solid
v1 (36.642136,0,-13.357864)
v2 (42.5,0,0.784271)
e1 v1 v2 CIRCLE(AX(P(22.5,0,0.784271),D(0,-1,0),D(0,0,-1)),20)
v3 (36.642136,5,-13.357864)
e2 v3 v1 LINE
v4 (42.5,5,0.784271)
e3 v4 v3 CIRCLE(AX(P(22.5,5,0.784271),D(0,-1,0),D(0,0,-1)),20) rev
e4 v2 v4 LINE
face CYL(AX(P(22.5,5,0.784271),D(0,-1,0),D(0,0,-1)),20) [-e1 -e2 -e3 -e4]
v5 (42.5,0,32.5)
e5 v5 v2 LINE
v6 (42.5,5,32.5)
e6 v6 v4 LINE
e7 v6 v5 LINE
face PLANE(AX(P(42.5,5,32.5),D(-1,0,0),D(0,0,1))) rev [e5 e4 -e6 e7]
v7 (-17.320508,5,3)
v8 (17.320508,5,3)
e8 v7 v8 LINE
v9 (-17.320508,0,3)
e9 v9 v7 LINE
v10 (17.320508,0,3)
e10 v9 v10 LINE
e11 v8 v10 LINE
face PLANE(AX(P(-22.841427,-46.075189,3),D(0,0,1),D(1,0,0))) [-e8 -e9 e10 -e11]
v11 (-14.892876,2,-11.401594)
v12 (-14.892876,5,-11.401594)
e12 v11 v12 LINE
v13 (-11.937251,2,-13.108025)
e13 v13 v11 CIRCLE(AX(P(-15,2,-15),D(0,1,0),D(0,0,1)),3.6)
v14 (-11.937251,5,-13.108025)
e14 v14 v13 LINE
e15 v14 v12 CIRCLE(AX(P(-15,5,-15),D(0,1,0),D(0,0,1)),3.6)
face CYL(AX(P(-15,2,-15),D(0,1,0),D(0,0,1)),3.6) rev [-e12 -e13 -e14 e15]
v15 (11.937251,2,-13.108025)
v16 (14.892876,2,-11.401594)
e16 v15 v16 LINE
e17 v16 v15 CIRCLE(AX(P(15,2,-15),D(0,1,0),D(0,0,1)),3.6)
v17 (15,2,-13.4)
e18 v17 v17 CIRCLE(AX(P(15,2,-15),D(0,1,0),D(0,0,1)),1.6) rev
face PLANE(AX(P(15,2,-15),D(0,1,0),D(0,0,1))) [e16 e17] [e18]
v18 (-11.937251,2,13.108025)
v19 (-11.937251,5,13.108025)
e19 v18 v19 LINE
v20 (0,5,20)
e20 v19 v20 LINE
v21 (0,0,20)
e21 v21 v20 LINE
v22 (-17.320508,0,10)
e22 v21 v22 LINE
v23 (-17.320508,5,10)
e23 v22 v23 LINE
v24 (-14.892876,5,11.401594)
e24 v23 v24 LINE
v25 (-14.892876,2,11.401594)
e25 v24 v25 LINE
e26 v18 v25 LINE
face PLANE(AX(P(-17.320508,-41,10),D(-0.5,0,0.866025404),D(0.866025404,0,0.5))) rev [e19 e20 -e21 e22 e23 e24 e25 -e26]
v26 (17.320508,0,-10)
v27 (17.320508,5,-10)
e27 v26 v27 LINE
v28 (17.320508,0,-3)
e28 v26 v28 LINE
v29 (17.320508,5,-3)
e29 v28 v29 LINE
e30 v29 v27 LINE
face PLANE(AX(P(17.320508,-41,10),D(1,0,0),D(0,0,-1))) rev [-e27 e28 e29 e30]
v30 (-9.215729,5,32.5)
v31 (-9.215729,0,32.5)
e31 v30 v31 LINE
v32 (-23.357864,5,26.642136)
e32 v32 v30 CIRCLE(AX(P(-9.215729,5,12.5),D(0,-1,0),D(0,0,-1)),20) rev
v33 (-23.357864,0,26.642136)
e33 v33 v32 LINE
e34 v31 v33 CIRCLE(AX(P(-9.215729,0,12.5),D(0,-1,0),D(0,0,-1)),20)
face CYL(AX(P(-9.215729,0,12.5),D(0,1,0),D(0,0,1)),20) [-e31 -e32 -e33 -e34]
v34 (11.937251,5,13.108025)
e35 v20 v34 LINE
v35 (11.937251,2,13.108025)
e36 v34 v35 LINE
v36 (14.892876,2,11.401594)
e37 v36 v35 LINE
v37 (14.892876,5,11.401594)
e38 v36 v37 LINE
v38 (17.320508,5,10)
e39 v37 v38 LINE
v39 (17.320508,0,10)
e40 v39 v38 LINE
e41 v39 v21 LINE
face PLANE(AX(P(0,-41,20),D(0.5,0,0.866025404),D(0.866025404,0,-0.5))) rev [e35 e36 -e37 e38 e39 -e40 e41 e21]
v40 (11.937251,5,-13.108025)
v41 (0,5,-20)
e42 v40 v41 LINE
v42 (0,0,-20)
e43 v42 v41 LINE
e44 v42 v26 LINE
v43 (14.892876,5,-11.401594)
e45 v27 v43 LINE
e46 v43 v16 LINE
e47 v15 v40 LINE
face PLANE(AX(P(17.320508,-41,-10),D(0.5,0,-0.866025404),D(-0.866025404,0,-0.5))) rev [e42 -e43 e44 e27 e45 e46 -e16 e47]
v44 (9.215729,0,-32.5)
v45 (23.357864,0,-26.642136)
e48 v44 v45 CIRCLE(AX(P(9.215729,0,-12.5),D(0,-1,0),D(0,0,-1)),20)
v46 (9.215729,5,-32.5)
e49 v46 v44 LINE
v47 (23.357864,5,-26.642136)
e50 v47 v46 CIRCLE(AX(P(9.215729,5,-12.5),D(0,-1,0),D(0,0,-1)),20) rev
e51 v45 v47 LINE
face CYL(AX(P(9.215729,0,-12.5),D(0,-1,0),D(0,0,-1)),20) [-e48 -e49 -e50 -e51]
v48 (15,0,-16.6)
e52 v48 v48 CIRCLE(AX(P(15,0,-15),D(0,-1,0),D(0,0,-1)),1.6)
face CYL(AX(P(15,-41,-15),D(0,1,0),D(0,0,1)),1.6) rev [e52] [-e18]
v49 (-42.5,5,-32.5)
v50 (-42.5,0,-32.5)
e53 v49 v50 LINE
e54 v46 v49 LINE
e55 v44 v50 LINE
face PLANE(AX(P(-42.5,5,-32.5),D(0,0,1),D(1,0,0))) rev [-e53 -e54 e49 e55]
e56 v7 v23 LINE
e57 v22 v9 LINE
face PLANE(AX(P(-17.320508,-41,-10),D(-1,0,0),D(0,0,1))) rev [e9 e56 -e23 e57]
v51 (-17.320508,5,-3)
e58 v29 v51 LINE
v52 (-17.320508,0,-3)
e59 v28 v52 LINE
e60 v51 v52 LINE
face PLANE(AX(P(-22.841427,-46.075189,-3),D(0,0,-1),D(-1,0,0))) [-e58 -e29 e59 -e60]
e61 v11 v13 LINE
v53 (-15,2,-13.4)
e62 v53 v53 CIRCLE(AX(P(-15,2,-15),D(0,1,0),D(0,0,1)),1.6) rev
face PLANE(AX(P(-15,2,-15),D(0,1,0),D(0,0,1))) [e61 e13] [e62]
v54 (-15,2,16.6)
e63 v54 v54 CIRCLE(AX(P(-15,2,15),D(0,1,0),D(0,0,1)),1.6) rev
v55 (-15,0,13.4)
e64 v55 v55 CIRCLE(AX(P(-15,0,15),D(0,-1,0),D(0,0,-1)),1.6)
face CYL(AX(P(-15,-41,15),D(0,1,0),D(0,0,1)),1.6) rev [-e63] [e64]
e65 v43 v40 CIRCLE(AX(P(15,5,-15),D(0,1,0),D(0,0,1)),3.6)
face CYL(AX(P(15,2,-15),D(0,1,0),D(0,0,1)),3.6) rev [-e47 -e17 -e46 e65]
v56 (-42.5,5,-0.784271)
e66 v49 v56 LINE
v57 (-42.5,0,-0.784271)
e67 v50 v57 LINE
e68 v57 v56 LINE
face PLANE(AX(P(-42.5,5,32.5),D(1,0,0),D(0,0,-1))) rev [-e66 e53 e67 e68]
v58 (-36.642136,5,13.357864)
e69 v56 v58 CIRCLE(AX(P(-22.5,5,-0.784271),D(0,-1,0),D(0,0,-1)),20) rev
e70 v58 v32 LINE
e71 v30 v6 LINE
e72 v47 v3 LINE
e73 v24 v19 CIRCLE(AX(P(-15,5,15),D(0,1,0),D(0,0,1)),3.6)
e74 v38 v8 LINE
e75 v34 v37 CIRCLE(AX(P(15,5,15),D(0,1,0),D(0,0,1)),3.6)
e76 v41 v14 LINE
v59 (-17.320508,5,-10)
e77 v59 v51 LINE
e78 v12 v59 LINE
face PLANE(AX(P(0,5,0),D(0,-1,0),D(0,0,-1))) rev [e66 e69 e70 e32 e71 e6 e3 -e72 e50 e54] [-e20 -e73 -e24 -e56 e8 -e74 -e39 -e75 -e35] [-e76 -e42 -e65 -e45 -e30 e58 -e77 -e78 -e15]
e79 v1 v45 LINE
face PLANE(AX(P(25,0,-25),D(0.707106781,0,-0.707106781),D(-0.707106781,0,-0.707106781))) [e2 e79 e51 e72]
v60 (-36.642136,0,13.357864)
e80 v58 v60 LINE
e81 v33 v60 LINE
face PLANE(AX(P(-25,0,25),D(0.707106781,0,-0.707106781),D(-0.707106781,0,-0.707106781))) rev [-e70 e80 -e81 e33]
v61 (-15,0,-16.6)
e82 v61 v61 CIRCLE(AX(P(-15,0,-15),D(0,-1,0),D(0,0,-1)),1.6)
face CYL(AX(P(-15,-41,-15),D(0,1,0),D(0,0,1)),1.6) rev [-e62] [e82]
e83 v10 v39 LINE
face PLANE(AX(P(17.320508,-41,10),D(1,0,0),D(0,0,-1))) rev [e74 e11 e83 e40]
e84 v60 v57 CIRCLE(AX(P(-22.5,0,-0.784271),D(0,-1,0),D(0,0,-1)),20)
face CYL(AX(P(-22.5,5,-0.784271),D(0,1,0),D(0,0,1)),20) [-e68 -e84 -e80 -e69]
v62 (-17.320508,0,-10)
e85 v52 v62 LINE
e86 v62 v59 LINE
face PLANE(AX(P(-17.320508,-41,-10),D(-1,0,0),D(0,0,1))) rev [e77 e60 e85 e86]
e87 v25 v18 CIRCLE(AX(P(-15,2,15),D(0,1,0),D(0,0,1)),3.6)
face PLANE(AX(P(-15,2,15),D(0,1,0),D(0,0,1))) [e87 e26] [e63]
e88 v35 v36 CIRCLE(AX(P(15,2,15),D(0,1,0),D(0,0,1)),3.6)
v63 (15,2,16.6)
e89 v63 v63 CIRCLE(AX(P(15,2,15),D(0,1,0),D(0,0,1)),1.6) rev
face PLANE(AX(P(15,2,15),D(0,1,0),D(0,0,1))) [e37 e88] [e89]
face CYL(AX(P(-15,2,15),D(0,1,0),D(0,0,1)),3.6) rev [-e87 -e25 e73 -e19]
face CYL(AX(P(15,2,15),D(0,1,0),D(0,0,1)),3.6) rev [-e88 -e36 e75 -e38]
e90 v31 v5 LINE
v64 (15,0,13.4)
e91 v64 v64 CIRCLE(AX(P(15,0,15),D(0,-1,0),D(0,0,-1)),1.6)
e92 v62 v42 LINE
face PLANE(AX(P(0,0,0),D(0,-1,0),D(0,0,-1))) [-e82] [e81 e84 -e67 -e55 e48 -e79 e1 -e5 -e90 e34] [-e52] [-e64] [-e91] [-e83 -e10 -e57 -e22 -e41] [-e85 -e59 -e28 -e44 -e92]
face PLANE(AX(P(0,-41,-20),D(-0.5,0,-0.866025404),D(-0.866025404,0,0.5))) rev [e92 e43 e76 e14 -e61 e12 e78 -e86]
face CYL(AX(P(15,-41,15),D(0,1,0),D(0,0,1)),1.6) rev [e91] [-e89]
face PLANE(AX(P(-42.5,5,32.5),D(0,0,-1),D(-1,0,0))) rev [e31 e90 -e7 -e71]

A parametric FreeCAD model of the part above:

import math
import FreeCAD as App
import Part
import Sketcher
Q = App.Units.Quantity


def edges_at(feature, points):
    """Names of the edges that pass closest to the given points."""
    edges = feature.Shape.Edges
    near = lambda p: min(range(len(edges)), key=lambda i: edges[i].distToShape(Part.Vertex(*p))[0])
    return sorted({f"Edge{near(p) + 1}" for p in points})

doc = App.newDocument("Part")
body = doc.addObject("PartDesign::Body", "Body")

# Sketch on XZ plane
sketch1 = body.newObject("Sketcher::SketchObject", "Sketch")
sketch1.AttachmentSupport = (doc.getObject("XZ_Plane"), [""])
sketch1.MapMode = "FlatFace"
sketch1.addGeometry(Part.LineSegment(App.Vector(-42.5, -32.5, 0), App.Vector(-42.5, 32.5, 0)), False)
sketch1.addGeometry(Part.LineSegment(App.Vector(-42.5, 32.5, 0), App.Vector(42.5, 32.5, 0)), False)
sketch1.addGeometry(Part.LineSegment(App.Vector(42.5, 32.5, 0), App.Vector(42.5, -32.5, 0)), False)
sketch1.addGeometry(Part.LineSegment(App.Vector(42.5, -32.5, 0), App.Vector(-42.5, -32.5, 0)), False)
sketch1.addConstraint(Sketcher.Constraint("Coincident", 0, 2, 1, 1))
sketch1.addConstraint(Sketcher.Constraint("Coincident", 1, 2, 2, 1))
sketch1.addConstraint(Sketcher.Constraint("Coincident", 2, 2, 3, 1))
sketch1.addConstraint(Sketcher.Constraint("Coincident", 3, 2, 0, 1))
sketch1.addConstraint(Sketcher.Constraint("Vertical", 0))
sketch1.addConstraint(Sketcher.Constraint("Horizontal", 1))
sketch1.addConstraint(Sketcher.Constraint("Vertical", 2))
sketch1.addConstraint(Sketcher.Constraint("Horizontal", 3))
sketch1.addConstraint(Sketcher.Constraint("Symmetric", 0, 2, 2, 2, -1, 1))
sketch1.addConstraint(Sketcher.Constraint("DistanceX", 1, 1, 1, 2, 85.0))
sketch1.addConstraint(Sketcher.Constraint("DistanceY", 0, 1, 0, 2, 65.0))
pad1 = body.newObject("PartDesign::Pad", "Pad")
pad1.Profile = sketch1
pad1.Length = 5
pad1.Reversed = True

# Sketch on XZ plane
sketch2 = body.newObject("Sketcher::SketchObject", "Sketch001")
sketch2.AttachmentSupport = (doc.getObject("XZ_Plane"), [""])
sketch2.MapMode = "FlatFace"
sketch2.AttachmentOffset = App.Placement(App.Vector(0, 0, -5), App.Rotation())
sketch2.addGeometry(Part.ArcOfCircle(Part.Circle(App.Vector(-15, -15, 0), App.Vector(0, 0, 1), 1.6), math.radians(90), math.radians(360)), False)
sketch2.addGeometry(Part.ArcOfCircle(Part.Circle(App.Vector(-15, -15, 0), App.Vector(0, 0, 1), 1.6), math.radians(0), math.radians(90)), False)
sketch2.addGeometry(Part.ArcOfCircle(Part.Circle(App.Vector(15, -15, 0), App.Vector(0, 0, 1), 1.6), math.radians(90), math.radians(180)), False)
sketch2.addGeometry(Part.ArcOfCircle(Part.Circle(App.Vector(15, -15, 0), App.Vector(0, 0, 1), 1.6), math.radians(0), math.radians(90)), False)
sketch2.addGeometry(Part.ArcOfCircle(Part.Circle(App.Vector(15, -15, 0), App.Vector(0, 0, 1), 1.6), math.radians(180), math.radians(360)), False)
sketch2.addGeometry(Part.ArcOfCircle(Part.Circle(App.Vector(-15, 15, 0), App.Vector(0, 0, 1), 1.6), math.radians(-90), math.radians(0)), False)
sketch2.addGeometry(Part.ArcOfCircle(Part.Circle(App.Vector(-15, 15, 0), App.Vector(0, 0, 1), 1.6), math.radians(0), math.radians(270)), False)
sketch2.addGeometry(Part.ArcOfCircle(Part.Circle(App.Vector(15, 15, 0), App.Vector(0, 0, 1), 1.6), math.radians(180), math.radians(270)), False)
sketch2.addGeometry(Part.ArcOfCircle(Part.Circle(App.Vector(15, 15, 0), App.Vector(0, 0, 1), 1.6), math.radians(0), math.radians(180)), False)
sketch2.addGeometry(Part.ArcOfCircle(Part.Circle(App.Vector(15, 15, 0), App.Vector(0, 0, 1), 1.6), math.radians(-90), math.radians(0)), False)
sketch2.addConstraint(Sketcher.Constraint("Tangent", 0, 1, 1, 2))
sketch2.addConstraint(Sketcher.Constraint("Coincident", 1, 1, 0, 2))
sketch2.addConstraint(Sketcher.Constraint("Tangent", 2, 1, 3, 2))
sketch2.addConstraint(Sketcher.Constraint("Tangent", 3, 1, 4, 2))
sketch2.addConstraint(Sketcher.Constraint("Tangent", 4, 1, 2, 2))
sketch2.addConstraint(Sketcher.Constraint("Tangent", 5, 1, 6, 2))
sketch2.addConstraint(Sketcher.Constraint("Coincident", 6, 1, 5, 2))
sketch2.addConstraint(Sketcher.Constraint("Tangent", 7, 1, 8, 2))
sketch2.addConstraint(Sketcher.Constraint("Tangent", 8, 1, 9, 2))
sketch2.addConstraint(Sketcher.Constraint("Tangent", 9, 1, 7, 2))
sketch2.addConstraint(Sketcher.Constraint("Equal", 1, 2))
sketch2.addConstraint(Sketcher.Constraint("Equal", 4, 5))
sketch2.addConstraint(Sketcher.Constraint("Equal", 6, 7))
sketch2.addConstraint(Sketcher.Constraint("Symmetric", 2, 3, 5, 3, -1, 1))
sketch2.addConstraint(Sketcher.Constraint("Symmetric", 0, 3, 7, 3, -1, 1))
sketch2.addConstraint(Sketcher.Constraint("Symmetric", 0, 3, 2, 3, -2))
sketch2.addConstraint(Sketcher.Constraint("Horizontal", 4, 3, 1, 1))
sketch2.addConstraint(Sketcher.Constraint("Horizontal", 1, 1, 3, 1))
sketch2.addConstraint(Sketcher.Constraint("Horizontal", 3, 1, 4, 1))
sketch2.addConstraint(Sketcher.Constraint("Horizontal", 9, 3, 6, 1))
sketch2.addConstraint(Sketcher.Constraint("Horizontal", 6, 1, 7, 1))
sketch2.addConstraint(Sketcher.Constraint("Horizontal", 7, 1, 8, 1))
sketch2.addConstraint(Sketcher.Constraint("Vertical", 6, 3, 0, 1))
sketch2.addConstraint(Sketcher.Constraint("Vertical", 9, 3, 2, 1))
sketch2.addConstraint(Sketcher.Constraint("Vertical", 0, 1, 5, 1))
sketch2.addConstraint(Sketcher.Constraint("Vertical", 2, 1, 9, 1))
sketch2.addConstraint(Sketcher.Constraint("Radius", 0, 1.6))
sketch2.addConstraint(Sketcher.Constraint("DistanceX", 0, 3, -1, 1, 15.0))
sketch2.addConstraint(Sketcher.Constraint("DistanceY", 0, 3, -1, 1, 15.0))
pocket1 = body.newObject("PartDesign::Pocket", "Pocket")
pocket1.Profile = sketch2
pocket1.Length = 46
pocket1.Reversed = True

# Sketch on XZ plane
sketch3 = body.newObject("Sketcher::SketchObject", "Sketch002")
sketch3.AttachmentSupport = (doc.getObject("XZ_Plane"), [""])
sketch3.MapMode = "FlatFace"
sketch3.AttachmentOffset = App.Placement(App.Vector(0, 0, -5), App.Rotation())
sketch3.addGeometry(Part.LineSegment(App.Vector(0, 20, 0), App.Vector(17.320508, 10, 0)), False)
sketch3.addGeometry(Part.LineSegment(App.Vector(17.320508, 10, 0), App.Vector(17.320508, -10, 0)), False)
sketch3.addGeometry(Part.LineSegment(App.Vector(17.320508, -10, 0), App.Vector(0, -20, 0)), False)
sketch3.addGeometry(Part.LineSegment(App.Vector(0, -20, 0), App.Vector(-17.320508, -10, 0)), False)
sketch3.addGeometry(Part.LineSegment(App.Vector(-17.320508, -10, 0), App.Vector(-17.320508, 10, 0)), False)
sketch3.addGeometry(Part.LineSegment(App.Vector(-17.320508, 10, 0), App.Vector(0, 20, 0)), False)
sketch3.addConstraint(Sketcher.Constraint("Coincident", 0, 2, 1, 1))
sketch3.addConstraint(Sketcher.Constraint("Coincident", 1, 2, 2, 1))
sketch3.addConstraint(Sketcher.Constraint("Coincident", 2, 2, 3, 1))
sketch3.addConstraint(Sketcher.Constraint("Coincident", 3, 2, 4, 1))
sketch3.addConstraint(Sketcher.Constraint("Coincident", 4, 2, 5, 1))
sketch3.addConstraint(Sketcher.Constraint("Coincident", 5, 2, 0, 1))
sketch3.addConstraint(Sketcher.Constraint("Vertical", 1))
sketch3.addConstraint(Sketcher.Constraint("Vertical", 4))
sketch3.addConstraint(Sketcher.Constraint("Symmetric", 0, 2, 3, 2, -1, 1))
sketch3.addConstraint(Sketcher.Constraint("Symmetric", 2, 2, 5, 2, -1, 1))
sketch3.addConstraint(Sketcher.Constraint("PointOnObject", 2, 2, -2))
sketch3.addConstraint(Sketcher.Constraint("Parallel", 2, 5))
sketch3.addConstraint(Sketcher.Constraint("Horizontal", 1, 2, 3, 2))
sketch3.addConstraint(Sketcher.Constraint("DistanceY", 1, 2, 1, 1, 20.0))
sketch3.addConstraint(Sketcher.Constraint("Angle", 0, Q("-30 deg")))
sketch3.addConstraint(Sketcher.Constraint("Distance", 0, 20.0))
pocket2 = body.newObject("PartDesign::Pocket", "Pocket001")
pocket2.Profile = sketch3
pocket2.Length = 46
pocket2.Reversed = True

# Sketch on XZ plane
sketch4 = body.newObject("Sketcher::SketchObject", "Sketch003")
sketch4.AttachmentSupport = (doc.getObject("XZ_Plane"), [""])
sketch4.MapMode = "FlatFace"
sketch4.AttachmentOffset = App.Placement(App.Vector(0, 0, -5), App.Rotation())
sketch4.addGeometry(Part.LineSegment(App.Vector(-22.841427, -3, 0), App.Vector(-22.841427, 3, 0)), False)
sketch4.addGeometry(Part.LineSegment(App.Vector(-22.841427, 3, 0), App.Vector(22.841427, 3, 0)), False)
sketch4.addGeometry(Part.LineSegment(App.Vector(22.841427, 3, 0), App.Vector(22.841427, -3, 0)), False)
sketch4.addGeometry(Part.LineSegment(App.Vector(22.841427, -3, 0), App.Vector(-22.841427, -3, 0)), False)
sketch4.addConstraint(Sketcher.Constraint("Coincident", 0, 2, 1, 1))
sketch4.addConstraint(Sketcher.Constraint("Coincident", 1, 2, 2, 1))
sketch4.addConstraint(Sketcher.Constraint("Coincident", 2, 2, 3, 1))
sketch4.addConstraint(Sketcher.Constraint("Coincident", 3, 2, 0, 1))
sketch4.addConstraint(Sketcher.Constraint("Vertical", 0))
sketch4.addConstraint(Sketcher.Constraint("Horizontal", 1))
sketch4.addConstraint(Sketcher.Constraint("Vertical", 2))
sketch4.addConstraint(Sketcher.Constraint("Horizontal", 3))
sketch4.addConstraint(Sketcher.Constraint("Symmetric", 0, 2, 2, 2, -1, 1))
sketch4.addConstraint(Sketcher.Constraint("DistanceY", 0, 1, 0, 2, 6.0))
sketch4.addConstraint(Sketcher.Constraint("DistanceX", 1, 1, 1, 2, 45.682853))
pad2 = body.newObject("PartDesign::Pad", "Pad001")
pad2.Profile = sketch4
pad2.Length = 5

# Sketch on XZ plane
sketch5 = body.newObject("Sketcher::SketchObject", "Sketch004")
sketch5.AttachmentSupport = (doc.getObject("XZ_Plane"), [""])
sketch5.MapMode = "FlatFace"
sketch5.AttachmentOffset = App.Placement(App.Vector(0, 0, -5), App.Rotation())
sketch5.addGeometry(Part.Circle(App.Vector(-15, -15, 0), App.Vector(0, 0, 1), 3.6), False)
sketch5.addGeometry(Part.Circle(App.Vector(15, -15, 0), App.Vector(0, 0, 1), 3.6), False)
sketch5.addGeometry(Part.Circle(App.Vector(-15, 15, 0), App.Vector(0, 0, 1), 3.6), False)
sketch5.addGeometry(Part.Circle(App.Vector(15, 15, 0), App.Vector(0, 0, 1), 3.6), False)
sketch5.addConstraint(Sketcher.Constraint("Equal", 0, 1))
sketch5.addConstraint(Sketcher.Constraint("Equal", 1, 2))
sketch5.addConstraint(Sketcher.Constraint("Equal", 2, 3))
sketch5.addConstraint(Sketcher.Constraint("Symmetric", 1, 3, 2, 3, -1, 1))
sketch5.addConstraint(Sketcher.Constraint("Symmetric", 0, 3, 3, 3, -1, 1))
sketch5.addConstraint(Sketcher.Constraint("Symmetric", 0, 3, 1, 3, -2))
sketch5.addConstraint(Sketcher.Constraint("Diameter", 0, 7.2))
sketch5.addConstraint(Sketcher.Constraint("DistanceX", 0, 3, -1, 1, 15.0))
sketch5.addConstraint(Sketcher.Constraint("DistanceY", 0, 3, -1, 1, 15.0))
pocket3 = body.newObject("PartDesign::Pocket", "Pocket002")
pocket3.Profile = sketch5
pocket3.Length = 3
pocket3.Reversed = True

# Sketch on XZ plane
sketch6 = body.newObject("Sketcher::SketchObject", "Sketch005")
sketch6.AttachmentSupport = (doc.getObject("XZ_Plane"), [""])
sketch6.MapMode = "FlatFace"
sketch6.AttachmentOffset = App.Placement(App.Vector(0, 0, -5), App.Rotation())
sketch6.addGeometry(Part.LineSegment(App.Vector(17.5, -32.5, 0), App.Vector(42.5, -7.5, 0)), False)
sketch6.addGeometry(Part.LineSegment(App.Vector(42.5, -7.5, 0), App.Vector(42.5, -32.5, 0)), False)
sketch6.addGeometry(Part.LineSegment(App.Vector(42.5, -32.5, 0), App.Vector(17.5, -32.5, 0)), False)
sketch6.addGeometry(Part.LineSegment(App.Vector(-42.5, 32.5, 0), App.Vector(-17.5, 32.5, 0)), False)
sketch6.addGeometry(Part.LineSegment(App.Vector(-17.5, 32.5, 0), App.Vector(-42.5, 7.5, 0)), False)
sketch6.addGeometry(Part.LineSegment(App.Vector(-42.5, 7.5, 0), App.Vector(-42.5, 32.5, 0)), False)
sketch6.addConstraint(Sketcher.Constraint("Coincident", 0, 2, 1, 1))
sketch6.addConstraint(Sketcher.Constraint("Coincident", 1, 2, 2, 1))
sketch6.addConstraint(Sketcher.Constraint("Coincident", 2, 2, 0, 1))
sketch6.addConstraint(Sketcher.Constraint("Coincident", 3, 2, 4, 1))
sketch6.addConstraint(Sketcher.Constraint("Coincident", 4, 2, 5, 1))
sketch6.addConstraint(Sketcher.Constraint("Coincident", 5, 2, 3, 1))
sketch6.addConstraint(Sketcher.Constraint("Vertical", 1))
sketch6.addConstraint(Sketcher.Constraint("Horizontal", 2))
sketch6.addConstraint(Sketcher.Constraint("Horizontal", 3))
sketch6.addConstraint(Sketcher.Constraint("Vertical", 5))
sketch6.addConstraint(Sketcher.Constraint("Symmetric", 2, 2, 3, 2, -1, 1))
sketch6.addConstraint(Sketcher.Constraint("Symmetric", 0, 2, 4, 2, -1, 1))
sketch6.addConstraint(Sketcher.Constraint("Equal", 3, 1))
sketch6.addConstraint(Sketcher.Constraint("DistanceX", 2, 2, 2, 1, 25.0))
sketch6.addConstraint(Sketcher.Constraint("DistanceX", 3, 2, 0, 2, 60.0))
sketch6.addConstraint(Sketcher.Constraint("DistanceY", 0, 2, 3, 2, 40.0))
pocket4 = body.newObject("PartDesign::Pocket", "Pocket003")
pocket4.Profile = sketch6
pocket4.Length = 10
pocket4.Midplane = True
doc.recompute()

fillet = body.newObject("PartDesign::Fillet", "Fillet")
fillet.Base = (pocket4, edges_at(pocket4, [
    (42.5, 2.5, -7.5),
    (17.5, 2.5, -32.5),
    (-17.5, 2.5, 32.5),
    (-42.5, 2.5, 7.5),
]))
fillet.Radius = 20

doc.recompute()
